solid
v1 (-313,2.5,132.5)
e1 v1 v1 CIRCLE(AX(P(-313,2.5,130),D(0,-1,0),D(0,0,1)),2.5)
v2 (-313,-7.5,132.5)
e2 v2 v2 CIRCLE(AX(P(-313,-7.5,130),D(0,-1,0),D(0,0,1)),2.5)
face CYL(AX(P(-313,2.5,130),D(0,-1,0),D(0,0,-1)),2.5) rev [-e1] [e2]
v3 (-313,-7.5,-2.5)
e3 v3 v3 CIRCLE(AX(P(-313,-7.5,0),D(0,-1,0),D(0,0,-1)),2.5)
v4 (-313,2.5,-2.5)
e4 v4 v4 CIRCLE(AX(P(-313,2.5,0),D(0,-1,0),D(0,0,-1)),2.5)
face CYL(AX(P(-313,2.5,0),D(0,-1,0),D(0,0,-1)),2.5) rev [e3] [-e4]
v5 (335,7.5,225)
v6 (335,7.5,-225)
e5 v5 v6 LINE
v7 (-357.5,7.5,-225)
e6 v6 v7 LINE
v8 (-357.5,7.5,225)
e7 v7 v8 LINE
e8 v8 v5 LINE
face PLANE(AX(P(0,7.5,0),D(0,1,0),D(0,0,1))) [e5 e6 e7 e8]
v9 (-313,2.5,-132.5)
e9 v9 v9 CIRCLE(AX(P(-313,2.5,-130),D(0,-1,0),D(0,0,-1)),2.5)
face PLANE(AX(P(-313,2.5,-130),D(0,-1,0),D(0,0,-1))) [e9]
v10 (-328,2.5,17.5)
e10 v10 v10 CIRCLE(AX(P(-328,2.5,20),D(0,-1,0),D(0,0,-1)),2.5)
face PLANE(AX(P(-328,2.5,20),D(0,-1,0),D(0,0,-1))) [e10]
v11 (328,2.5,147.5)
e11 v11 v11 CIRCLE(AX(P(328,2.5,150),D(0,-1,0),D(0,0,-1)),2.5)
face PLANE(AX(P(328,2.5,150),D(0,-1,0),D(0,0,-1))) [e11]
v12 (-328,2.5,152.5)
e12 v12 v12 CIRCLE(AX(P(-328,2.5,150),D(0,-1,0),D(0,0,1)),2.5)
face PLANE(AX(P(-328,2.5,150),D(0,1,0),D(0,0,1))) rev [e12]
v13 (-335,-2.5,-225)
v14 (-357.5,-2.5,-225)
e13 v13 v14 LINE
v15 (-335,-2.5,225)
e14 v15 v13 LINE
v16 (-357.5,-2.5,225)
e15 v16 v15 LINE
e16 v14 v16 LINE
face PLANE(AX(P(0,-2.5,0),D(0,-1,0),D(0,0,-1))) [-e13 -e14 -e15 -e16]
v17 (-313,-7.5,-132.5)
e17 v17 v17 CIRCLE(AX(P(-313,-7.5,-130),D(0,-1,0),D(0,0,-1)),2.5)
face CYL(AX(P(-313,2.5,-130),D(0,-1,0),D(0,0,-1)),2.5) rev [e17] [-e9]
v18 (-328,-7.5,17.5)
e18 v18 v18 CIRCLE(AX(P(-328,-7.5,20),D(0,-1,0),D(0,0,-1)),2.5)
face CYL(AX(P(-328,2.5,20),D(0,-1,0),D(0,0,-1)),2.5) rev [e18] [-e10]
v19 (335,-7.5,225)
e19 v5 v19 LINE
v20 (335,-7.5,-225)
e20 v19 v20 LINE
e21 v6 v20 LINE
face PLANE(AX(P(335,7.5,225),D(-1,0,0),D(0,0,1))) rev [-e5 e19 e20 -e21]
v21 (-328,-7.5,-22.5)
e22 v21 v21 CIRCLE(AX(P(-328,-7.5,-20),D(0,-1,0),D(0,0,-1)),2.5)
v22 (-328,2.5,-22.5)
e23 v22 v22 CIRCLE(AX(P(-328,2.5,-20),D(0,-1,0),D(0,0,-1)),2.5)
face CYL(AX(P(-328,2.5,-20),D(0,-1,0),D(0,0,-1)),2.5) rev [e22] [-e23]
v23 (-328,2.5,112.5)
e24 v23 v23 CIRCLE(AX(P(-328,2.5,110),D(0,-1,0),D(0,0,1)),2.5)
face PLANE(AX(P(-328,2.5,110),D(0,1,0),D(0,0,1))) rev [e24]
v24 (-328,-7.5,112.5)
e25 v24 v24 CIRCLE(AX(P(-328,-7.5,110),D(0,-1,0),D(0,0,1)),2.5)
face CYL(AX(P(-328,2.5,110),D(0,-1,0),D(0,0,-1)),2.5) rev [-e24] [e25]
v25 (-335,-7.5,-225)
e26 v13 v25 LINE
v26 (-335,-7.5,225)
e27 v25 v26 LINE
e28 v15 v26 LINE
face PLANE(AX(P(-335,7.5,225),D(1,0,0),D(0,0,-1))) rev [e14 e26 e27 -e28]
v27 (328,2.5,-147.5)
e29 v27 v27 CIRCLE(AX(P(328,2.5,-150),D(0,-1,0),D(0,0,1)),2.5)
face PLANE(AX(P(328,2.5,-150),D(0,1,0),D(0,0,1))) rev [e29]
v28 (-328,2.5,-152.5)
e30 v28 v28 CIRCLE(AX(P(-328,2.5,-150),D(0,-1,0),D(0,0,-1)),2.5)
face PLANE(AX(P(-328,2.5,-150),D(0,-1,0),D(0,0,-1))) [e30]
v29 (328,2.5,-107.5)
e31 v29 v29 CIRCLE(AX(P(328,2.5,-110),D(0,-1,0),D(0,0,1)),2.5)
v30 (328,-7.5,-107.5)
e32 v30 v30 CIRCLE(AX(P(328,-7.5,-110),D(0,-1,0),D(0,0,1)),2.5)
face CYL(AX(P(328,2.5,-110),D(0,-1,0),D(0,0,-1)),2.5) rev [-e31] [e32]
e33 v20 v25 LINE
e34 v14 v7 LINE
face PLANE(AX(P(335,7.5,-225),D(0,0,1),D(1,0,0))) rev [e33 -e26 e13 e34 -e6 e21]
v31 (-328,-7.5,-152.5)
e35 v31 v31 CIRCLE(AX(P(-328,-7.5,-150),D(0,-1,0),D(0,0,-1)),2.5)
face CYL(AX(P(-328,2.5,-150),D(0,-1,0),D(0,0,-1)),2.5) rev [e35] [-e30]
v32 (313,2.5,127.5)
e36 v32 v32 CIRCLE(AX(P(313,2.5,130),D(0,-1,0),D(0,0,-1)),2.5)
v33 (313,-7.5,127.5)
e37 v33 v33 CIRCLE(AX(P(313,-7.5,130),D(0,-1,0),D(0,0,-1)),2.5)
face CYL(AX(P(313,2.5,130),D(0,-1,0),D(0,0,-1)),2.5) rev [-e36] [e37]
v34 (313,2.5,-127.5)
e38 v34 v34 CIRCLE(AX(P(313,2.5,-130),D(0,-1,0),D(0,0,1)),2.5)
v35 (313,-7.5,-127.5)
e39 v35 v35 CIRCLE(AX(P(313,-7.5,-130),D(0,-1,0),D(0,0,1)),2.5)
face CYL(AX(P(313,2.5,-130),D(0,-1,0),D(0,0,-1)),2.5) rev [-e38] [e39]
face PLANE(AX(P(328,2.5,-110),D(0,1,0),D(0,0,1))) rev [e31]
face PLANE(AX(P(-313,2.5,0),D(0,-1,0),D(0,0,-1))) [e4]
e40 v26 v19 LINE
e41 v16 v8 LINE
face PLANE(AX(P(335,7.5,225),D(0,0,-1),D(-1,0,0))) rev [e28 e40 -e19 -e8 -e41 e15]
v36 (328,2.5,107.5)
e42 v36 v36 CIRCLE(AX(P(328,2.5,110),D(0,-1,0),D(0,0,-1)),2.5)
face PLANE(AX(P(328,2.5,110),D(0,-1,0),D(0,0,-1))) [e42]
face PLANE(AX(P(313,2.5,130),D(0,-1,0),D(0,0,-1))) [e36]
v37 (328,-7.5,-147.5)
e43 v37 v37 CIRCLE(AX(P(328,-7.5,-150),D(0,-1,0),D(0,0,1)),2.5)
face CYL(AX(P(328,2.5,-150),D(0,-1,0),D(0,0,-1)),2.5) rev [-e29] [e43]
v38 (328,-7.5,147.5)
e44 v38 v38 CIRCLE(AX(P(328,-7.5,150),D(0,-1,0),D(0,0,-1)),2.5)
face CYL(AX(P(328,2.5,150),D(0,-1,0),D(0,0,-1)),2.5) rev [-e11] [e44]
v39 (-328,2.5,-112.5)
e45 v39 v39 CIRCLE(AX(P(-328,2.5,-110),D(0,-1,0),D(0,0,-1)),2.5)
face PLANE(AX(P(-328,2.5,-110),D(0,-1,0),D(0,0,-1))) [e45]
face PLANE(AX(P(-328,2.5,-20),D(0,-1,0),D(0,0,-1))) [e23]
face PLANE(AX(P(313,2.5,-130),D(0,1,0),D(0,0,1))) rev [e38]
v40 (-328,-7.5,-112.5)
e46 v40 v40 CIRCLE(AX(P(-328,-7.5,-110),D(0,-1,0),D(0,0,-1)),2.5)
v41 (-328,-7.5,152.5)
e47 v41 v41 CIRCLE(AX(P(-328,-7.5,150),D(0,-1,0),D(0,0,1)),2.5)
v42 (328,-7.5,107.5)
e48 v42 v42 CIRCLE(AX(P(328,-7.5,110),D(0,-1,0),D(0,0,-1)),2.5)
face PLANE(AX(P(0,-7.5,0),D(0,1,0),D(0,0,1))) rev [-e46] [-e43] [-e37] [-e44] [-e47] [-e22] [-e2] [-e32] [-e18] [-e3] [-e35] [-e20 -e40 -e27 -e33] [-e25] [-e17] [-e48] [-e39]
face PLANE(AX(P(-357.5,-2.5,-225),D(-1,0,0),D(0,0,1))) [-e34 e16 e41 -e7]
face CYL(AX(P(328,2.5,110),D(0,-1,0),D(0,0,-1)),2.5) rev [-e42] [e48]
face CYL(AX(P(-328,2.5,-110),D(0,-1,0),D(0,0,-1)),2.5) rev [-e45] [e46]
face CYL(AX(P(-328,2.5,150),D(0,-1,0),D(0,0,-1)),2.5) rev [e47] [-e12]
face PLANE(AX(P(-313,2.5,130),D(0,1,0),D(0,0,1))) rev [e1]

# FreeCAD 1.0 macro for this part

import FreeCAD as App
import Part
import Sketcher
from FreeCAD import Vector
Q = App.Units.Quantity

doc = App.newDocument("Part")
params = doc.addObject("Spreadsheet::Sheet", "Params")
for row, (alias, value) in enumerate([
    ("sketch1_width", "670 mm"),
    ("sketch1_height", "450 mm"),
    ("pad1_length", "15 mm"),
    ("sketch2_diameter", "5 mm"),
    ("pocket1_length", "10 mm"),
    ("sketch3_height", "450 mm"),
    ("sketch3_width", "22.5 mm"),
    ("pad2_length", "10 mm"),
    ("sketch4_diameter", "5 mm"),
    ("pocket2_length", "10 mm"),
], start=1):
    params.set(f"A{row}", alias)
    params.set(f"B{row}", "=" + value)
    params.setAlias(f"B{row}", alias)

body = doc.addObject("PartDesign::Body", "Body")

# Sketch on XZ plane
sketch1 = doc.addObject("Sketcher::SketchObject", "Sketch")
body.addObject(sketch1)
sketch1.AttachmentSupport = (doc.XZ_Plane, [""])
sketch1.MapMode = "FlatFace"
sketch1.addGeometry([
    Part.LineSegment(Vector(-335, -225, 0), Vector(-335, 225, 0)),
    Part.LineSegment(Vector(-335, 225, 0), Vector(335, 225, 0)),
    Part.LineSegment(Vector(335, 225, 0), Vector(335, -225, 0)),
    Part.LineSegment(Vector(335, -225, 0), Vector(-335, -225, 0)),
], False)
sketch1.addConstraint([
    Sketcher.Constraint("Coincident", 0, 2, 1, 1),
    Sketcher.Constraint("Coincident", 1, 2, 2, 1),
    Sketcher.Constraint("Coincident", 2, 2, 3, 1),
    Sketcher.Constraint("Coincident", 3, 2, 0, 1),
    Sketcher.Constraint("Vertical", 0),
    Sketcher.Constraint("Horizontal", 1),
    Sketcher.Constraint("Vertical", 2),
    Sketcher.Constraint("Horizontal", 3),
    Sketcher.Constraint("Symmetric", 0, 2, 2, 2, -1, 1),
    Sketcher.Constraint("DistanceX", 1, 1, 1, 2, Q("670 mm")),
    Sketcher.Constraint("DistanceY", 0, 1, 0, 2, Q("450 mm")),
])
sketch1.setExpression("Constraints[9]", "Params.sketch1_width")
sketch1.setExpression("Constraints[10]", "Params.sketch1_height")
pad1 = doc.addObject("PartDesign::Pad", "Pad")
body.addObject(pad1)
pad1.Profile = sketch1
pad1.setExpression("Length", "Params.pad1_length")
pad1.Midplane = True

# Sketch on XZ plane
sketch2 = doc.addObject("Sketcher::SketchObject", "Sketch001")
body.addObject(sketch2)
sketch2.AttachmentSupport = (doc.XZ_Plane, [""])
sketch2.MapMode = "FlatFace"
sketch2.AttachmentOffset = App.Placement(Vector(0, 0, 7.5), App.Rotation())
sketch2.addGeometry([
    Part.Circle(Vector(-328, -150, 0), Vector(0, 0, 1), 2.5),  # 0
    Part.Circle(Vector(-328, -110, 0), Vector(0, 0, 1), 2.5),  # 1
    Part.Circle(Vector(-313, -130, 0), Vector(0, 0, 1), 2.5),  # 2
    Part.Circle(Vector(-328, 150, 0), Vector(0, 0, 1), 2.5),  # 3
    Part.Circle(Vector(-313, 130, 0), Vector(0, 0, 1), 2.5),  # 4
    Part.Circle(Vector(-328, 110, 0), Vector(0, 0, 1), 2.5),  # 5
    Part.Circle(Vector(328, 150, 0), Vector(0, 0, 1), 2.5),  # 6
    Part.Circle(Vector(328, 110, 0), Vector(0, 0, 1), 2.5),  # 7
    Part.Circle(Vector(313, 130, 0), Vector(0, 0, 1), 2.5),  # 8
    Part.Circle(Vector(328, -150, 0), Vector(0, 0, 1), 2.5),  # 9
    Part.Circle(Vector(313, -130, 0), Vector(0, 0, 1), 2.5),  # 10
    Part.Circle(Vector(328, -110, 0), Vector(0, 0, 1), 2.5),  # 11
], False)
sketch2.addConstraint([
    Sketcher.Constraint("Equal", 0, 1),
    Sketcher.Constraint("Equal", 1, 2),
    Sketcher.Constraint("Equal", 2, 3),
    Sketcher.Constraint("Equal", 3, 4),
    Sketcher.Constraint("Equal", 4, 5),
    Sketcher.Constraint("Equal", 5, 6),
    Sketcher.Constraint("Equal", 6, 7),
    Sketcher.Constraint("Equal", 7, 8),
    Sketcher.Constraint("Equal", 8, 9),
    Sketcher.Constraint("Equal", 9, 10),
    Sketcher.Constraint("Equal", 10, 11),
    Sketcher.Constraint("Symmetric", 0, 3, 6, 3, -1, 1),
    Sketcher.Constraint("Symmetric", 1, 3, 7, 3, -1, 1),
    Sketcher.Constraint("Symmetric", 2, 3, 8, 3, -1, 1),
    Sketcher.Constraint("Symmetric", 3, 3, 9, 3, -1, 1),
    Sketcher.Constraint("Symmetric", 4, 3, 10, 3, -1, 1),
    Sketcher.Constraint("Symmetric", 5, 3, 11, 3, -1, 1),
    Sketcher.Constraint("Symmetric", 3, 3, 6, 3, -2),
    Sketcher.Constraint("Symmetric", 5, 3, 7, 3, -2),
    Sketcher.Constraint("Symmetric", 4, 3, 8, 3, -2),
    Sketcher.Constraint("Vertical", 0, 3, 1, 3),
    Sketcher.Constraint("Diameter", 0, Q("5 mm")),
    Sketcher.Constraint("DistanceX", 0, 3, -1, 1, Q("328 mm")),
    Sketcher.Constraint("DistanceY", 0, 3, -1, 1, Q("150 mm")),
    Sketcher.Constraint("DistanceY", 1, 3, -1, 1, Q("110 mm")),
    Sketcher.Constraint("DistanceX", 2, 3, -1, 1, Q("313 mm")),
    Sketcher.Constraint("DistanceY", 2, 3, -1, 1, Q("130 mm")),
])
sketch2.setExpression("Constraints[21]", "Params.sketch2_diameter")
pocket1 = doc.addObject("PartDesign::Pocket", "Pocket")
body.addObject(pocket1)
pocket1.Profile = sketch2
pocket1.setExpression("Length", "Params.pocket1_length")

# Sketch on XZ plane
sketch3 = doc.addObject("Sketcher::SketchObject", "Sketch002")
body.addObject(sketch3)
sketch3.AttachmentSupport = (doc.XZ_Plane, [""])
sketch3.MapMode = "FlatFace"
sketch3.AttachmentOffset = App.Placement(Vector(0, 0, -7.5), App.Rotation())
sketch3.addGeometry([
    Part.LineSegment(Vector(-357.5, -225, 0), Vector(-357.5, 225, 0)),
    Part.LineSegment(Vector(-357.5, 225, 0), Vector(-335, 225, 0)),
    Part.LineSegment(Vector(-335, 225, 0), Vector(-335, -225, 0)),
    Part.LineSegment(Vector(-335, -225, 0), Vector(-357.5, -225, 0)),
], False)
sketch3.addConstraint([
    Sketcher.Constraint("Coincident", 0, 2, 1, 1),
    Sketcher.Constraint("Coincident", 1, 2, 2, 1),
    Sketcher.Constraint("Coincident", 2, 2, 3, 1),
    Sketcher.Constraint("Coincident", 3, 2, 0, 1),
    Sketcher.Constraint("Vertical", 0),
    Sketcher.Constraint("Horizontal", 1),
    Sketcher.Constraint("Vertical", 2),
    Sketcher.Constraint("Horizontal", 3),
    Sketcher.Constraint("DistanceY", 0, 1, 0, 2, Q("450 mm")),
    Sketcher.Constraint("DistanceX", 1, 1, 1, 2, Q("22.5 mm")),
    Sketcher.Constraint("DistanceY", -1, 1, 0, 2, Q("225 mm")),
    Sketcher.Constraint("DistanceX", 1, 2, -1, 1, Q("335 mm")),
])
sketch3.setExpression("Constraints[8]", "Params.sketch3_height")
sketch3.setExpression("Constraints[9]", "Params.sketch3_width")
pad2 = doc.addObject("PartDesign::Pad", "Pad001")
body.addObject(pad2)
pad2.Profile = sketch3
pad2.setExpression("Length", "Params.pad2_length")

# Sketch on XZ plane
sketch4 = doc.addObject("Sketcher::SketchObject", "Sketch003")
body.addObject(sketch4)
sketch4.AttachmentSupport = (doc.XZ_Plane, [""])
sketch4.MapMode = "FlatFace"
sketch4.AttachmentOffset = App.Placement(Vector(0, 0, 7.5), App.Rotation())
sketch4.addGeometry([
    Part.Circle(Vector(-313, 0, 0), Vector(0, 0, 1), 2.5),
    Part.Circle(Vector(-328, 20, 0), Vector(0, 0, 1), 2.5),
    Part.Circle(Vector(-328, -20, 0), Vector(0, 0, 1), 2.5),
], False)
sketch4.addConstraint([
    Sketcher.Constraint("Equal", 0, 1),
    Sketcher.Constraint("Equal", 1, 2),
    Sketcher.Constraint("Symmetric", 1, 3, 2, 3, -1),
    Sketcher.Constraint("PointOnObject", 0, 3, -1),
    Sketcher.Constraint("Diameter", 0, Q("5 mm")),
    Sketcher.Constraint("DistanceX", 0, 3, -1, 1, Q("313 mm")),
    Sketcher.Constraint("DistanceX", 1, 3, -1, 1, Q("328 mm")),
    Sketcher.Constraint("DistanceY", -1, 1, 1, 3, Q("20 mm")),
])
sketch4.setExpression("Constraints[4]", "Params.sketch4_diameter")
pocket2 = doc.addObject("PartDesign::Pocket", "Pocket001")
body.addObject(pocket2)
pocket2.Profile = sketch4
pocket2.setExpression("Length", "Params.pocket2_length")

doc.recompute()
